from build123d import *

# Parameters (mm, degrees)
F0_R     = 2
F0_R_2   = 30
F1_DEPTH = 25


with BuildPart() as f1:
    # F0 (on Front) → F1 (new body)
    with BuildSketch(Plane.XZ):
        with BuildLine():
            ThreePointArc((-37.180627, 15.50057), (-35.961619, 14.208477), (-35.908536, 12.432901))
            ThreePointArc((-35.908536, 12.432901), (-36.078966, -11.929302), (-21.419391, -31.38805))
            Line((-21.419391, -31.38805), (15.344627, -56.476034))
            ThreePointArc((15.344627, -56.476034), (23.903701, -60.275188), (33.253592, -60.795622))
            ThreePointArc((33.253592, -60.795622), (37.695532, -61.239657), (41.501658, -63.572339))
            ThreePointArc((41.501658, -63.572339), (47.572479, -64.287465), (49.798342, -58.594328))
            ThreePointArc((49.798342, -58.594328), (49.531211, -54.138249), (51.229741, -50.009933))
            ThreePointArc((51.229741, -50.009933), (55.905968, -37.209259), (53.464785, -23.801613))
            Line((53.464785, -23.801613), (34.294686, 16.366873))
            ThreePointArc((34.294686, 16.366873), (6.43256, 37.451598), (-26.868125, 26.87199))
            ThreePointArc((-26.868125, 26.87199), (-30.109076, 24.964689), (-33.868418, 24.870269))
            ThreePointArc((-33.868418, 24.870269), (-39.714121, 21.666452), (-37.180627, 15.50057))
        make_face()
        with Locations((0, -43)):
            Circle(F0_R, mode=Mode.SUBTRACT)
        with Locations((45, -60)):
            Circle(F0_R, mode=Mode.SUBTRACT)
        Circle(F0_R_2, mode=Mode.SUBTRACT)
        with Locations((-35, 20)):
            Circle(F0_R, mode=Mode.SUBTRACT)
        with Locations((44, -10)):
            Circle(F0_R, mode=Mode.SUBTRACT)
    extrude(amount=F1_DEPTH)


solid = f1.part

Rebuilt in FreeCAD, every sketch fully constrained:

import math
import FreeCAD as App
import Part
import Sketcher
Q = App.Units.Quantity

doc = App.newDocument("Part")
body = doc.addObject("PartDesign::Body", "Body")

# Sketch on XZ plane
sketch1 = body.newObject("Sketcher::SketchObject", "Sketch")
sketch1.AttachmentSupport = (doc.getObject("XZ_Plane"), [""])
sketch1.MapMode = "FlatFace"
sketch1.addGeometry([
    Part.ArcOfCircle(Part.Circle(App.Vector(-38.3, 13.3, 0), App.Vector(0, 0, 1), 2.5), math.radians(-19), math.radians(64)),  # 0
    Part.ArcOfCircle(Part.Circle(App.Vector(0, 0, 0), App.Vector(0, 0, 1), 38), math.radians(161), math.radians(236)),  # 1
    Part.LineSegment(App.Vector(-21.4, -31.4, 0), App.Vector(15.3, -56.5, 0)),  # 2
    Part.ArcOfCircle(Part.Circle(App.Vector(30, -35, 0), App.Vector(0, 0, 1), 26), math.radians(-124), math.radians(-83)),  # 3
    Part.ArcOfCircle(Part.Circle(App.Vector(34.5, -70.7, 0), App.Vector(0, 0, 1), 10), math.radians(46), math.radians(97)),  # 4
    Part.ArcOfCircle(Part.Circle(App.Vector(45, -60, 0), App.Vector(0, 0, 1), 5), math.radians(-134), math.radians(16)),  # 5
    Part.ArcOfCircle(Part.Circle(App.Vector(59.4, -55.8, 0), App.Vector(0, 0, 1), 10), math.radians(145), math.radians(196)),  # 6
    Part.ArcOfCircle(Part.Circle(App.Vector(30, -35, 0), App.Vector(0, 0, 1), 26), math.radians(-35), math.radians(26)),  # 7
    Part.LineSegment(App.Vector(53.5, -23.8, 0), App.Vector(34.3, 16.4, 0)),  # 8
    Part.ArcOfCircle(Part.Circle(App.Vector(0, 0, 0), App.Vector(0, 0, 1), 38), math.radians(26), math.radians(135)),  # 9
    Part.ArcOfCircle(Part.Circle(App.Vector(-32.2, 32.2, 0), App.Vector(0, 0, 1), 7.5), math.radians(-103), math.radians(-45)),  # 10
    Part.ArcOfCircle(Part.Circle(App.Vector(-35, 20, 0), App.Vector(0, 0, 1), 5), math.radians(77), math.radians(244)),  # 11
    Part.Circle(App.Vector(0, -43, 0), App.Vector(0, 0, 1), 2),  # 12
    Part.Circle(App.Vector(45, -60, 0), App.Vector(0, 0, 1), 2),  # 13
    Part.Circle(App.Vector(0, 0, 0), App.Vector(0, 0, 1), 30),  # 14
    Part.Circle(App.Vector(-35, 20, 0), App.Vector(0, 0, 1), 2),  # 15
    Part.Circle(App.Vector(44, -10, 0), App.Vector(0, 0, 1), 2),  # 16
], False)
sketch1.addConstraint([
    Sketcher.Constraint("Tangent", 0, 1, 1, 1),
    Sketcher.Constraint("Tangent", 1, 2, 2, 1),
    Sketcher.Constraint("Tangent", 2, 2, 3, 1),
    Sketcher.Constraint("Tangent", 3, 2, 4, 2),
    Sketcher.Constraint("Tangent", 4, 1, 5, 1),
    Sketcher.Constraint("Tangent", 5, 2, 6, 2),
    Sketcher.Constraint("Tangent", 6, 1, 7, 1),
    Sketcher.Constraint("Tangent", 7, 2, 8, 1),
    Sketcher.Constraint("Tangent", 8, 2, 9, 1),
    Sketcher.Constraint("Tangent", 9, 2, 10, 2),
    Sketcher.Constraint("Tangent", 10, 1, 11, 1),
    Sketcher.Constraint("Tangent", 11, 2, 0, 2),
    Sketcher.Constraint("Coincident", 1, 3, -1, 1),
    Sketcher.Constraint("Coincident", 9, 3, -1, 1),
    Sketcher.Constraint("Coincident", 14, 3, -1, 1),
    Sketcher.Constraint("Coincident", 7, 3, 3, 3),
    Sketcher.Constraint("Coincident", 13, 3, 5, 3),
    Sketcher.Constraint("Coincident", 15, 3, 11, 3),
    Sketcher.Constraint("Equal", 3, 7),
    Sketcher.Constraint("Equal", 5, 11),
    Sketcher.Constraint("Equal", 12, 13),
    Sketcher.Constraint("Equal", 13, 15),
    Sketcher.Constraint("Equal", 15, 16),
    Sketcher.Constraint("PointOnObject", 12, 3, -2),
    Sketcher.Constraint("Equal", 2, 8),
    Sketcher.Constraint("Diameter", 12, Q("4 mm")),
    Sketcher.Constraint("Diameter", 14, Q("60 mm")),
    Sketcher.Constraint("Radius", 3, Q("25.999998 mm")),
    Sketcher.Constraint("Radius", 5, Q("5 mm")),
    Sketcher.Constraint("Radius", 6, Q("9.999999 mm")),
    Sketcher.Constraint("Radius", 9, Q("38 mm")),
    Sketcher.Constraint("Radius", 0, Q("2.499999 mm")),
    Sketcher.Constraint("Radius", 10, Q("7.500001 mm")),
    Sketcher.Constraint("DistanceX", -1, 1, 3, 3, Q("29.999999 mm")),
    Sketcher.Constraint("DistanceY", 3, 3, -1, 1, Q("35.000001 mm")),
    Sketcher.Constraint("DistanceX", -1, 1, 5, 3, Q("45 mm")),
    Sketcher.Constraint("DistanceY", 5, 3, -1, 1, Q("60 mm")),
    Sketcher.Constraint("DistanceX", 11, 3, -1, 1, Q("35 mm")),
    Sketcher.Constraint("DistanceY", -1, 1, 11, 3, Q("20 mm")),
    Sketcher.Constraint("DistanceY", 12, 3, -1, 1, Q("43 mm")),
    Sketcher.Constraint("DistanceX", -1, 1, 16, 3, Q("44 mm")),
    Sketcher.Constraint("DistanceY", 16, 3, -1, 1, Q("10 mm")),
    Sketcher.Constraint("Radius", 4, Q("10.000006 mm")),
])
pad1 = body.newObject("PartDesign::Pad", "Pad")
pad1.Profile = sketch1
pad1.Length = 25

doc.recompute()
